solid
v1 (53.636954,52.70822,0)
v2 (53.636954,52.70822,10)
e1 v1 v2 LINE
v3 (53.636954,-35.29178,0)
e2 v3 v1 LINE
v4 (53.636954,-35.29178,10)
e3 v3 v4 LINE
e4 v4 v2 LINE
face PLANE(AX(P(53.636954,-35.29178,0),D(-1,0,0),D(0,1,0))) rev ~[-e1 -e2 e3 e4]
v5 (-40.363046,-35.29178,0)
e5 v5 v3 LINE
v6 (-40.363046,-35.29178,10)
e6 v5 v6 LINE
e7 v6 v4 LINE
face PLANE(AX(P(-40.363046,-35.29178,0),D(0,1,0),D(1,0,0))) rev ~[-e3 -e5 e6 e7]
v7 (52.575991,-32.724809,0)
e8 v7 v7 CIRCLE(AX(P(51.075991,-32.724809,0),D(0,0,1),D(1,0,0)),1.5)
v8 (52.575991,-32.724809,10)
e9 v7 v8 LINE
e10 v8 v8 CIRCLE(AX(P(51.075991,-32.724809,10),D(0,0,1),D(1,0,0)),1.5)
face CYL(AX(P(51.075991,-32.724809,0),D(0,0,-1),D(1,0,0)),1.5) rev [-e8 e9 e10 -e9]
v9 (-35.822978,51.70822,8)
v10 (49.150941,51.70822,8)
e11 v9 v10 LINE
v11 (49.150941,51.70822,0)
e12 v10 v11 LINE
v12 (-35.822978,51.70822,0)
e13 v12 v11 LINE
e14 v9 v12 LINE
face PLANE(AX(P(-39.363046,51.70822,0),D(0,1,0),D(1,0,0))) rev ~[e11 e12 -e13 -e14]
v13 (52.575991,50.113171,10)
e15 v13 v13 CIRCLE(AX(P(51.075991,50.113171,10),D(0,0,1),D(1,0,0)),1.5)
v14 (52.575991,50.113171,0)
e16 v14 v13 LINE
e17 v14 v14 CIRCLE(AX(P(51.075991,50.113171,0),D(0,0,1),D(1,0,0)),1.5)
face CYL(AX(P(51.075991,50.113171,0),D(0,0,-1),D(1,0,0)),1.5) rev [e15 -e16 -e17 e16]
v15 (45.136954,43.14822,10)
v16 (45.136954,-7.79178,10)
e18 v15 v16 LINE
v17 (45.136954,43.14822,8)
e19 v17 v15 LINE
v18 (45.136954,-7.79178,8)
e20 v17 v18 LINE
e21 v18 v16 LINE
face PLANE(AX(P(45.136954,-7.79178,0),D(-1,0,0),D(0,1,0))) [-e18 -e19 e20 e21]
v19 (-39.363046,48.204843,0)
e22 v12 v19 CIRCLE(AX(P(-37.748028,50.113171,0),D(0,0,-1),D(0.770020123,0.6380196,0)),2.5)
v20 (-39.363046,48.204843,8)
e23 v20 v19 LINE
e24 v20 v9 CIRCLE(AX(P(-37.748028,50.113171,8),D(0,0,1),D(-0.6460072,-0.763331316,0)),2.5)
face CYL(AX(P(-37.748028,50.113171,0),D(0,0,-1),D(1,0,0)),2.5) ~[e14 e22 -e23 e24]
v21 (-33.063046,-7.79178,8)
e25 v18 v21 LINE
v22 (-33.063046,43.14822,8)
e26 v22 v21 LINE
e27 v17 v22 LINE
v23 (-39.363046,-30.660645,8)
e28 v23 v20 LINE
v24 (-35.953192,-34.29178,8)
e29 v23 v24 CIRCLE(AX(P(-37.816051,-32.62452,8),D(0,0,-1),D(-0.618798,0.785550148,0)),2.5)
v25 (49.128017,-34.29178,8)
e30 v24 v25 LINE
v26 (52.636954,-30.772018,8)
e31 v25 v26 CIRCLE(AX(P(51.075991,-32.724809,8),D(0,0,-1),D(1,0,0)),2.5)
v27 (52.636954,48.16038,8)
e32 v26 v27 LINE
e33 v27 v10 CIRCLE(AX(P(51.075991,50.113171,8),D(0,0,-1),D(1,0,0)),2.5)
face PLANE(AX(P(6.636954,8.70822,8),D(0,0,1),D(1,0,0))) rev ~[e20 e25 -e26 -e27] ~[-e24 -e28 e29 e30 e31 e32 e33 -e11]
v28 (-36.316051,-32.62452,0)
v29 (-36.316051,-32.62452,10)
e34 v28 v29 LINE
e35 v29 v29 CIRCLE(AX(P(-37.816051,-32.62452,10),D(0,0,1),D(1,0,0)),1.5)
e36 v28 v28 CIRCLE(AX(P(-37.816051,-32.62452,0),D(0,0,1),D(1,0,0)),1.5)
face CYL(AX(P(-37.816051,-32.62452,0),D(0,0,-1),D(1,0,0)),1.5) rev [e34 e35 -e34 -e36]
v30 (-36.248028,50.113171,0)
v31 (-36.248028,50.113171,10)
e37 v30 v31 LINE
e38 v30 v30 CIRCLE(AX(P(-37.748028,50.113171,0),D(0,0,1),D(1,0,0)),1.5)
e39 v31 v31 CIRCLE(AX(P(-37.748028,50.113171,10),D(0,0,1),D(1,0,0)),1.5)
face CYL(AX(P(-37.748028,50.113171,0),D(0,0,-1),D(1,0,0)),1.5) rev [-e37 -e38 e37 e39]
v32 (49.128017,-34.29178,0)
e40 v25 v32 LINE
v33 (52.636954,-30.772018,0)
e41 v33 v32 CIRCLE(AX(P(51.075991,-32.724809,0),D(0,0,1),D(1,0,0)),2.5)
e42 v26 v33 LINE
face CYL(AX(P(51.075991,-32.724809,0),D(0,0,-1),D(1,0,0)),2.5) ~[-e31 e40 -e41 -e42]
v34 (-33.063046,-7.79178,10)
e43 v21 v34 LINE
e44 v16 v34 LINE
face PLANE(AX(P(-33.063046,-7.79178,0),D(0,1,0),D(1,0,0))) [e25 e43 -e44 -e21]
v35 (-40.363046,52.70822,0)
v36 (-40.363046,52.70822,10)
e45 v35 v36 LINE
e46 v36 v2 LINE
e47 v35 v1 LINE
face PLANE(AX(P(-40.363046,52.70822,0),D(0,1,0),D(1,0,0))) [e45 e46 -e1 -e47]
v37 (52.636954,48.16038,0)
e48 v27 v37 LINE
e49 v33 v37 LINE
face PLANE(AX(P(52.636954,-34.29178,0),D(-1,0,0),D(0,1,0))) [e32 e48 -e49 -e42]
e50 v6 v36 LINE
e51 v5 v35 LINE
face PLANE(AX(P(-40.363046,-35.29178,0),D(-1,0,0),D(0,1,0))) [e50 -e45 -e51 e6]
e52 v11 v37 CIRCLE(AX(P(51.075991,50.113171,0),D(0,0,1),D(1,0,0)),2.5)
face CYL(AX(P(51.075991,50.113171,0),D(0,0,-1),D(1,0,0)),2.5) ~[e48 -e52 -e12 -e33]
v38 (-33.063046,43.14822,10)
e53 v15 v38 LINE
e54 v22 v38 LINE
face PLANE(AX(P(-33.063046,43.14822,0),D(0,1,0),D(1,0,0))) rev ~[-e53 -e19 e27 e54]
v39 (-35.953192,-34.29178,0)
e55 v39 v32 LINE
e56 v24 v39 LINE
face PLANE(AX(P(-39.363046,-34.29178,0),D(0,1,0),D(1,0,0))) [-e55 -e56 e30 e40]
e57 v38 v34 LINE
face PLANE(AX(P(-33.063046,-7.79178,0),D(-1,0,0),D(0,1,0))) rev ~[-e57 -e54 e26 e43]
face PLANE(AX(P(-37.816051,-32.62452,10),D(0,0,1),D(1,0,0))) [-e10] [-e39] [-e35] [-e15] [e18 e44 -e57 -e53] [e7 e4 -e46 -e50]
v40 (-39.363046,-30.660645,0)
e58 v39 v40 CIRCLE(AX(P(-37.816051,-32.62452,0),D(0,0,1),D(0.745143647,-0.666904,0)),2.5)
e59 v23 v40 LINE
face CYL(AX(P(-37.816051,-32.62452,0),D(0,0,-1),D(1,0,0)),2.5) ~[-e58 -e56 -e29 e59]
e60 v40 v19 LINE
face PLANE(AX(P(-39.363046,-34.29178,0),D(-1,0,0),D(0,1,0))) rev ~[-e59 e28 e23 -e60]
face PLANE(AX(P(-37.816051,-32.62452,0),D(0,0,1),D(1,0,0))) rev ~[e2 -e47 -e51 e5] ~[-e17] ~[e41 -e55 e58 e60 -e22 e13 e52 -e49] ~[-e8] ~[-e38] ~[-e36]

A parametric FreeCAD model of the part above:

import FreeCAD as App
import Part
import Sketcher
Q = App.Units.Quantity

doc = App.newDocument("Part")
body = doc.addObject("PartDesign::Body", "Body")

sketch1 = body.newObject("Sketcher::SketchObject", "Sketch")
sketch1.AttachmentSupport = (doc.getObject("XY_Plane"), [""])
sketch1.MapMode = "FlatFace"
sketch1.addGeometry([
    Part.LineSegment(App.Vector(-40.4, 52.7, 0), App.Vector(-40.4, -35.3, 0)),
    Part.LineSegment(App.Vector(-40.4, -35.3, 0), App.Vector(53.6, -35.3, 0)),
    Part.LineSegment(App.Vector(53.6, -35.3, 0), App.Vector(53.6, 52.7, 0)),
    Part.LineSegment(App.Vector(53.6, 52.7, 0), App.Vector(-40.4, 52.7, 0)),
    Part.Circle(App.Vector(-37.8, -32.6, 0), App.Vector(0, 0, 1), 2.5),
    Part.Circle(App.Vector(51.1, -32.7, 0), App.Vector(0, 0, 1), 2.5),
    Part.Circle(App.Vector(-37.7, 50.1, 0), App.Vector(0, 0, 1), 2.5),
    Part.Circle(App.Vector(51.1, 50.1, 0), App.Vector(0, 0, 1), 2.5),
], False)
sketch1.addConstraint([
    Sketcher.Constraint("Coincident", 0, 2, 1, 1),
    Sketcher.Constraint("Coincident", 1, 2, 2, 1),
    Sketcher.Constraint("Coincident", 2, 2, 3, 1),
    Sketcher.Constraint("Coincident", 3, 2, 0, 1),
    Sketcher.Constraint("Vertical", 0),
    Sketcher.Constraint("Horizontal", 1),
    Sketcher.Constraint("Vertical", 2),
    Sketcher.Constraint("Horizontal", 3),
    Sketcher.Constraint("Equal", 4, 5),
    Sketcher.Constraint("Equal", 5, 6),
    Sketcher.Constraint("Equal", 6, 7),
    Sketcher.Constraint("Horizontal", 6, 3, 7, 3),
    Sketcher.Constraint("Vertical", 5, 3, 7, 3),
    Sketcher.Constraint("Diameter", 4, Q("5 mm")),
    Sketcher.Constraint("DistanceX", 1, 1, 1, 2, Q("94 mm")),
    Sketcher.Constraint("DistanceY", 0, 2, 0, 1, Q("88 mm")),
    Sketcher.Constraint("DistanceX", 4, 3, -1, 1, Q("37.816051 mm")),
    Sketcher.Constraint("DistanceY", 4, 3, -1, 1, Q("32.62452 mm")),
    Sketcher.Constraint("DistanceX", -1, 1, 5, 3, Q("51.075991 mm")),
    Sketcher.Constraint("DistanceY", 5, 3, -1, 1, Q("32.724809 mm")),
    Sketcher.Constraint("DistanceY", -1, 1, 6, 3, Q("50.113171 mm")),
    Sketcher.Constraint("DistanceY", 0, 2, -1, 1, Q("35.29178 mm")),
    Sketcher.Constraint("DistanceX", 6, 3, 5, 3, Q("88.824019 mm")),
    Sketcher.Constraint("DistanceX", 0, 2, -1, 1, Q("40.363046 mm")),
])
pad1 = body.newObject("PartDesign::Pad", "Pad")
pad1.Profile = sketch1
pad1.Length = 10

sketch2 = body.newObject("Sketcher::SketchObject", "Sketch001")
sketch2.AttachmentSupport = (doc.getObject("XY_Plane"), [""])
sketch2.MapMode = "FlatFace"
sketch2.addGeometry([
    Part.LineSegment(App.Vector(-39, 52, 0), App.Vector(-39, -34, 0)),
    Part.LineSegment(App.Vector(-39, -34, 0), App.Vector(53, -34, 0)),
    Part.LineSegment(App.Vector(53, -34, 0), App.Vector(53, 52, 0)),
    Part.LineSegment(App.Vector(53, 52, 0), App.Vector(-39, 52, 0)),
], False)
sketch2.addConstraint([
    Sketcher.Constraint("Coincident", 0, 2, 1, 1),
    Sketcher.Constraint("Coincident", 1, 2, 2, 1),
    Sketcher.Constraint("Coincident", 2, 2, 3, 1),
    Sketcher.Constraint("Coincident", 3, 2, 0, 1),
    Sketcher.Constraint("Vertical", 0),
    Sketcher.Constraint("Horizontal", 1),
    Sketcher.Constraint("Vertical", 2),
    Sketcher.Constraint("Horizontal", 3),
    Sketcher.Constraint("DistanceX", 1, 1, 1, 2, Q("92 mm")),
    Sketcher.Constraint("DistanceY", 0, 2, 0, 1, Q("86 mm")),
    Sketcher.Constraint("DistanceY", 0, 2, -1, 1, Q("34.29178 mm")),
    Sketcher.Constraint("DistanceX", 0, 2, -1, 1, Q("39.363046 mm")),
])
pocket1 = body.newObject("PartDesign::Pocket", "Pocket")
pocket1.Profile = sketch2
pocket1.Length = 8
pocket1.Reversed = True

sketch3 = body.newObject("Sketcher::SketchObject", "Sketch002")
sketch3.AttachmentSupport = (doc.getObject("XY_Plane"), [""])
sketch3.MapMode = "FlatFace"
sketch3.addGeometry([
    Part.LineSegment(App.Vector(-33, 43, 0), App.Vector(-33, -8, 0)),
    Part.LineSegment(App.Vector(-33, -8, 0), App.Vector(45, -8, 0)),
    Part.LineSegment(App.Vector(45, -8, 0), App.Vector(45, 43, 0)),
    Part.LineSegment(App.Vector(45, 43, 0), App.Vector(-33, 43, 0)),
], False)
sketch3.addConstraint([
    Sketcher.Constraint("Coincident", 0, 2, 1, 1),
    Sketcher.Constraint("Coincident", 1, 2, 2, 1),
    Sketcher.Constraint("Coincident", 2, 2, 3, 1),
    Sketcher.Constraint("Coincident", 3, 2, 0, 1),
    Sketcher.Constraint("Vertical", 0),
    Sketcher.Constraint("Horizontal", 1),
    Sketcher.Constraint("Vertical", 2),
    Sketcher.Constraint("Horizontal", 3),
    Sketcher.Constraint("DistanceX", 1, 1, 1, 2, Q("78.2 mm")),
    Sketcher.Constraint("DistanceY", 0, 2, 0, 1, Q("50.94 mm")),
    Sketcher.Constraint("DistanceY", 0, 2, -1, 1, Q("7.79178 mm")),
    Sketcher.Constraint("DistanceX", 0, 2, -1, 1, Q("33.063046 mm")),
])
pocket2 = body.newObject("PartDesign::Pocket", "Pocket001")
pocket2.Profile = sketch3
pocket2.Length = 25
pocket2.Reversed = True

sketch4 = body.newObject("Sketcher::SketchObject", "Sketch003")
sketch4.AttachmentSupport = (doc.getObject("XY_Plane"), [""])
sketch4.MapMode = "FlatFace"
sketch4.addGeometry([
    Part.Circle(App.Vector(-37.8, -32.6, 0), App.Vector(0, 0, 1), 2.5),
    Part.Circle(App.Vector(-37.8, -32.6, 0), App.Vector(0, 0, 1), 1.5),
    Part.Circle(App.Vector(-37.7, 50.1, 0), App.Vector(0, 0, 1), 2.5),
    Part.Circle(App.Vector(-37.7, 50.1, 0), App.Vector(0, 0, 1), 1.5),
    Part.Circle(App.Vector(51.1, 50.1, 0), App.Vector(0, 0, 1), 2.5),
    Part.Circle(App.Vector(51.1, 50.1, 0), App.Vector(0, 0, 1), 1.5),
    Part.Circle(App.Vector(51.1, -32.7, 0), App.Vector(0, 0, 1), 2.5),
    Part.Circle(App.Vector(51.1, -32.7, 0), App.Vector(0, 0, 1), 1.5),
], False)
sketch4.addConstraint([
    Sketcher.Constraint("Coincident", 1, 3, 0, 3),
    Sketcher.Constraint("Coincident", 3, 3, 2, 3),
    Sketcher.Constraint("Coincident", 5, 3, 4, 3),
    Sketcher.Constraint("Coincident", 7, 3, 6, 3),
    Sketcher.Constraint("Equal", 0, 2),
    Sketcher.Constraint("Equal", 1, 3),
    Sketcher.Constraint("Equal", 2, 4),
    Sketcher.Constraint("Equal", 3, 5),
    Sketcher.Constraint("Equal", 4, 6),
    Sketcher.Constraint("Equal", 5, 7),
    Sketcher.Constraint("Horizontal", 3, 3, 4, 3),
    Sketcher.Constraint("Vertical", 5, 3, 6, 3),
    Sketcher.Constraint("Diameter", 0, Q("5 mm")),
    Sketcher.Constraint("Diameter", 1, Q("3 mm")),
    Sketcher.Constraint("DistanceX", 0, 3, -1, 1, Q("37.816051 mm")),
    Sketcher.Constraint("DistanceY", 0, 3, -1, 1, Q("32.62452 mm")),
    Sketcher.Constraint("DistanceY", -1, 1, 2, 3, Q("50.113171 mm")),
    Sketcher.Constraint("DistanceX", -1, 1, 4, 3, Q("51.075991 mm")),
    Sketcher.Constraint("DistanceY", 6, 3, -1, 1, Q("32.724809 mm")),
    Sketcher.Constraint("DistanceX", 2, 3, 4, 3, Q("88.824019 mm")),
])
pad2 = body.newObject("PartDesign::Pad", "Pad001")
pad2.Profile = sketch4
pad2.Length = 10

doc.recompute()
